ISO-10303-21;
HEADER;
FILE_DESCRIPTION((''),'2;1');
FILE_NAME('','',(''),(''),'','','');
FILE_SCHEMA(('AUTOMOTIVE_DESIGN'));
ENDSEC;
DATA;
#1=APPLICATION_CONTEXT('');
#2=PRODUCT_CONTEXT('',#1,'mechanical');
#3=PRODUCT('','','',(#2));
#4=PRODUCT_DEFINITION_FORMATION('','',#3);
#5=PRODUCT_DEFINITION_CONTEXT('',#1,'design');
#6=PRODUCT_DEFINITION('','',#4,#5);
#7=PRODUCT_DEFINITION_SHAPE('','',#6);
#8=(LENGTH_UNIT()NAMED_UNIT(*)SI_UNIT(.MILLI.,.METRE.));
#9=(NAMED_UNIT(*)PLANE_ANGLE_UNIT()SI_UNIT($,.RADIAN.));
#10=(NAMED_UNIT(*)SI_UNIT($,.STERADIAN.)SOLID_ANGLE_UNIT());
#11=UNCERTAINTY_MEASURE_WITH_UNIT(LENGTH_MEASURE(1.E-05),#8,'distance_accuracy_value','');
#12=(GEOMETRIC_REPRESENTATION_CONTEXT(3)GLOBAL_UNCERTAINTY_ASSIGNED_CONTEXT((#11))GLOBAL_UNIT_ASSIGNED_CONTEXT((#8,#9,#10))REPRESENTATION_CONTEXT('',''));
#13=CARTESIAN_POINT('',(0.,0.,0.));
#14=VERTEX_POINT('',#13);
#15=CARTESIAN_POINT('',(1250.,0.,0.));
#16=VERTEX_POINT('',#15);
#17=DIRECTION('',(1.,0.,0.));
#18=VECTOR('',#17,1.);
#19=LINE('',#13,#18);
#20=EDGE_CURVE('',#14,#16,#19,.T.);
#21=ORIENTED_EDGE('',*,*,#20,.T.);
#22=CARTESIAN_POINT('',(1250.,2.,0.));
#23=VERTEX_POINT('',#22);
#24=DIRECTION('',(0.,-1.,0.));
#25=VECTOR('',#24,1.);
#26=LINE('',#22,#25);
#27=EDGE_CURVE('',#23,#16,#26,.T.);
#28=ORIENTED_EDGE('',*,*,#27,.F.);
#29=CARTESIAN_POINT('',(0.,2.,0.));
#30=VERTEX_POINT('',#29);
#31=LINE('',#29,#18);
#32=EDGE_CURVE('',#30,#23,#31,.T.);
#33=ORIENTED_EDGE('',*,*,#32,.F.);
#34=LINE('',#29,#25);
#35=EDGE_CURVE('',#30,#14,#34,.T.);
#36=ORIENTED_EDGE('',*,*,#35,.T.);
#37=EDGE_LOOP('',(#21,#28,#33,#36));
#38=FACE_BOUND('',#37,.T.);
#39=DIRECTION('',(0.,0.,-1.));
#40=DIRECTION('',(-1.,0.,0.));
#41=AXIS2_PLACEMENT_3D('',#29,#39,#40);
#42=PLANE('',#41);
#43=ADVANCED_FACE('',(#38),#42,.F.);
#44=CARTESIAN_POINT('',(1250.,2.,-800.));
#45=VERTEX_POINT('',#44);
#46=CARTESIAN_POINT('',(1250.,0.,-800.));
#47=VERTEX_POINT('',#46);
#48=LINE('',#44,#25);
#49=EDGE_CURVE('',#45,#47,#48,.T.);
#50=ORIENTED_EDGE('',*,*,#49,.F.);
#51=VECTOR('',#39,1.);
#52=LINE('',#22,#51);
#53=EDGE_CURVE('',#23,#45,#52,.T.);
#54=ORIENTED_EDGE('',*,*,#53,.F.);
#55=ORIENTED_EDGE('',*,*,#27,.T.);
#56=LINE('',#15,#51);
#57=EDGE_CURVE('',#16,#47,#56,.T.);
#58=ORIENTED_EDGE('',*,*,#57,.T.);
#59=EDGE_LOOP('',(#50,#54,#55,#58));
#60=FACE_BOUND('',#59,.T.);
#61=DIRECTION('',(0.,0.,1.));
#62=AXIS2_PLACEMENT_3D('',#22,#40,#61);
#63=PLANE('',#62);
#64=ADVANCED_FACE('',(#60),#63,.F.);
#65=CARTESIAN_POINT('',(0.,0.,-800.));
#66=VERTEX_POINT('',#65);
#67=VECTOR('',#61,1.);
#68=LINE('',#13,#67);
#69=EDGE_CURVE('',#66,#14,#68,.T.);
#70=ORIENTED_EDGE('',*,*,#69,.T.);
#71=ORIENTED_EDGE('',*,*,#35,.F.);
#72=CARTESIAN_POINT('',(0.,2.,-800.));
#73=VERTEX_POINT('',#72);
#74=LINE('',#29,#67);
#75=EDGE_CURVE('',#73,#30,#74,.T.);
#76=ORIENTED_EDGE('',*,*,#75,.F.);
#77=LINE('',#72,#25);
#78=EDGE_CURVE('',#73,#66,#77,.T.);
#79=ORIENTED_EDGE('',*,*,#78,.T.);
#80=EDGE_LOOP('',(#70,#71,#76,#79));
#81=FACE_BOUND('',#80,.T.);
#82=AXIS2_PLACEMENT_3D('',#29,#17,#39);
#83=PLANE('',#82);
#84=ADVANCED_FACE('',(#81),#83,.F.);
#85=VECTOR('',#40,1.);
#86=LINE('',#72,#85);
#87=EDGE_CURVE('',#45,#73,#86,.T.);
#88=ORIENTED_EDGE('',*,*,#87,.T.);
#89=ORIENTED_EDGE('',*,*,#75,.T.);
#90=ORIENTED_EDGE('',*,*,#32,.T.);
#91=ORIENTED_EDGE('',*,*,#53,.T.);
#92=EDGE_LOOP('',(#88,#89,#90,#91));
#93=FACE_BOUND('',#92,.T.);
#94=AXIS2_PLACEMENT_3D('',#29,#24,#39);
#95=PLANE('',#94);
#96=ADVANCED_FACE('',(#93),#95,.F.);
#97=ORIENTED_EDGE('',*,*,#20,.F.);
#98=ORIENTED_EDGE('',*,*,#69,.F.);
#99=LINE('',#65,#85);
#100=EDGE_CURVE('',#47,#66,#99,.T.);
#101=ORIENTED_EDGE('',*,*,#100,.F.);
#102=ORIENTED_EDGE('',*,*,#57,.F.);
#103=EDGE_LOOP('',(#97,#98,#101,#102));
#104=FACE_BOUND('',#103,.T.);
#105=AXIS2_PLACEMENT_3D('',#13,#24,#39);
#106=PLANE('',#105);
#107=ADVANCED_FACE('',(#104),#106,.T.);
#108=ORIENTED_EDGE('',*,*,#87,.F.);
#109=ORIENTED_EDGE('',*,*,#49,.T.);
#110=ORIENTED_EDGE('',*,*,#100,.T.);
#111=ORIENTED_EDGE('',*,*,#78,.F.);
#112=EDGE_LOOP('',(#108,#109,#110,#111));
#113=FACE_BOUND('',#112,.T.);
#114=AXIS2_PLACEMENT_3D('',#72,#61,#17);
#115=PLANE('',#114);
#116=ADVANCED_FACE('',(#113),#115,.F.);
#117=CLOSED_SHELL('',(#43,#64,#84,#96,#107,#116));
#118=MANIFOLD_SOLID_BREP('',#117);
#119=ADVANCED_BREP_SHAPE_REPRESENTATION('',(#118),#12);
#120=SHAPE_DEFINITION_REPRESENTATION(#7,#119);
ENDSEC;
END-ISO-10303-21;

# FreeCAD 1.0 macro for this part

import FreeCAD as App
import Part
import Sketcher
Q = App.Units.Quantity

doc = App.newDocument("Part")
body = doc.addObject("PartDesign::Body", "Body")

sketch1 = body.newObject("Sketcher::SketchObject", "Sketch")
sketch1.AttachmentSupport = (doc.getObject("XZ_Plane"), [""])
sketch1.MapMode = "FlatFace"
sketch1.addGeometry([
    Part.LineSegment(App.Vector(0, -800, 0), App.Vector(0, 0, 0)),
    Part.LineSegment(App.Vector(0, 0, 0), App.Vector(1250, 0, 0)),
    Part.LineSegment(App.Vector(1250, 0, 0), App.Vector(1250, -800, 0)),
    Part.LineSegment(App.Vector(1250, -800, 0), App.Vector(0, -800, 0)),
], False)
sketch1.addConstraint([
    Sketcher.Constraint("Coincident", 0, 2, 1, 1),
    Sketcher.Constraint("Coincident", 1, 2, 2, 1),
    Sketcher.Constraint("Coincident", 2, 2, 3, 1),
    Sketcher.Constraint("Coincident", 3, 2, 0, 1),
    Sketcher.Constraint("Vertical", 0),
    Sketcher.Constraint("Horizontal", 1),
    Sketcher.Constraint("Vertical", 2),
    Sketcher.Constraint("Horizontal", 3),
    Sketcher.Constraint("Coincident", 0, 2, -1, 1),
    Sketcher.Constraint("DistanceX", 1, 1, 1, 2, Q("1250 mm")),
    Sketcher.Constraint("DistanceY", 0, 1, 0, 2, Q("800 mm")),
])
pad1 = body.newObject("PartDesign::Pad", "Pad")
pad1.Profile = sketch1
pad1.Length = 2
pad1.Reversed = True

doc.recompute()
